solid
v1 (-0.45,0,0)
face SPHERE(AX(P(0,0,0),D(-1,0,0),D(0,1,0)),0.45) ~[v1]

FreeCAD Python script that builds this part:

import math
import FreeCAD as App
import Part
import Sketcher
Q = App.Units.Quantity

doc = App.newDocument("Part")
body = doc.addObject("PartDesign::Body", "Body")

# Sketch on XY plane
sketch1 = doc.addObject("Sketcher::SketchObject", "Sketch")
body.addObject(sketch1)
sketch1.AttachmentSupport = (doc.XY_Plane, [""])
sketch1.MapMode = "FlatFace"
sketch1.addGeometry([
    Part.LineSegment(App.Vector(-0.45, 0, 0), App.Vector(0.45, 0, 0)),
    Part.ArcOfCircle(Part.Circle(App.Vector(0, 0, 0), App.Vector(0, 0, 1), 0.45), math.radians(0), math.radians(180)),
], False)
sketch1.addConstraint([
    Sketcher.Constraint("Coincident", 0, 1, 1, 2),
    Sketcher.Constraint("Coincident", 1, 1, 0, 2),
    Sketcher.Constraint("Horizontal", 0),
    Sketcher.Constraint("Coincident", 1, 3, -1, 1),
    Sketcher.Constraint("PointOnObject", 0, 1, -1),
    Sketcher.Constraint("Radius", 1, Q("0.45 mm")),
])
revolution = doc.addObject("PartDesign::Revolution", "Revolution")
body.addObject(revolution)
revolution.Profile = sketch1
revolution.ReferenceAxis = (sketch1, ["H_Axis"])
revolution.Angle = 360

doc.recompute()
